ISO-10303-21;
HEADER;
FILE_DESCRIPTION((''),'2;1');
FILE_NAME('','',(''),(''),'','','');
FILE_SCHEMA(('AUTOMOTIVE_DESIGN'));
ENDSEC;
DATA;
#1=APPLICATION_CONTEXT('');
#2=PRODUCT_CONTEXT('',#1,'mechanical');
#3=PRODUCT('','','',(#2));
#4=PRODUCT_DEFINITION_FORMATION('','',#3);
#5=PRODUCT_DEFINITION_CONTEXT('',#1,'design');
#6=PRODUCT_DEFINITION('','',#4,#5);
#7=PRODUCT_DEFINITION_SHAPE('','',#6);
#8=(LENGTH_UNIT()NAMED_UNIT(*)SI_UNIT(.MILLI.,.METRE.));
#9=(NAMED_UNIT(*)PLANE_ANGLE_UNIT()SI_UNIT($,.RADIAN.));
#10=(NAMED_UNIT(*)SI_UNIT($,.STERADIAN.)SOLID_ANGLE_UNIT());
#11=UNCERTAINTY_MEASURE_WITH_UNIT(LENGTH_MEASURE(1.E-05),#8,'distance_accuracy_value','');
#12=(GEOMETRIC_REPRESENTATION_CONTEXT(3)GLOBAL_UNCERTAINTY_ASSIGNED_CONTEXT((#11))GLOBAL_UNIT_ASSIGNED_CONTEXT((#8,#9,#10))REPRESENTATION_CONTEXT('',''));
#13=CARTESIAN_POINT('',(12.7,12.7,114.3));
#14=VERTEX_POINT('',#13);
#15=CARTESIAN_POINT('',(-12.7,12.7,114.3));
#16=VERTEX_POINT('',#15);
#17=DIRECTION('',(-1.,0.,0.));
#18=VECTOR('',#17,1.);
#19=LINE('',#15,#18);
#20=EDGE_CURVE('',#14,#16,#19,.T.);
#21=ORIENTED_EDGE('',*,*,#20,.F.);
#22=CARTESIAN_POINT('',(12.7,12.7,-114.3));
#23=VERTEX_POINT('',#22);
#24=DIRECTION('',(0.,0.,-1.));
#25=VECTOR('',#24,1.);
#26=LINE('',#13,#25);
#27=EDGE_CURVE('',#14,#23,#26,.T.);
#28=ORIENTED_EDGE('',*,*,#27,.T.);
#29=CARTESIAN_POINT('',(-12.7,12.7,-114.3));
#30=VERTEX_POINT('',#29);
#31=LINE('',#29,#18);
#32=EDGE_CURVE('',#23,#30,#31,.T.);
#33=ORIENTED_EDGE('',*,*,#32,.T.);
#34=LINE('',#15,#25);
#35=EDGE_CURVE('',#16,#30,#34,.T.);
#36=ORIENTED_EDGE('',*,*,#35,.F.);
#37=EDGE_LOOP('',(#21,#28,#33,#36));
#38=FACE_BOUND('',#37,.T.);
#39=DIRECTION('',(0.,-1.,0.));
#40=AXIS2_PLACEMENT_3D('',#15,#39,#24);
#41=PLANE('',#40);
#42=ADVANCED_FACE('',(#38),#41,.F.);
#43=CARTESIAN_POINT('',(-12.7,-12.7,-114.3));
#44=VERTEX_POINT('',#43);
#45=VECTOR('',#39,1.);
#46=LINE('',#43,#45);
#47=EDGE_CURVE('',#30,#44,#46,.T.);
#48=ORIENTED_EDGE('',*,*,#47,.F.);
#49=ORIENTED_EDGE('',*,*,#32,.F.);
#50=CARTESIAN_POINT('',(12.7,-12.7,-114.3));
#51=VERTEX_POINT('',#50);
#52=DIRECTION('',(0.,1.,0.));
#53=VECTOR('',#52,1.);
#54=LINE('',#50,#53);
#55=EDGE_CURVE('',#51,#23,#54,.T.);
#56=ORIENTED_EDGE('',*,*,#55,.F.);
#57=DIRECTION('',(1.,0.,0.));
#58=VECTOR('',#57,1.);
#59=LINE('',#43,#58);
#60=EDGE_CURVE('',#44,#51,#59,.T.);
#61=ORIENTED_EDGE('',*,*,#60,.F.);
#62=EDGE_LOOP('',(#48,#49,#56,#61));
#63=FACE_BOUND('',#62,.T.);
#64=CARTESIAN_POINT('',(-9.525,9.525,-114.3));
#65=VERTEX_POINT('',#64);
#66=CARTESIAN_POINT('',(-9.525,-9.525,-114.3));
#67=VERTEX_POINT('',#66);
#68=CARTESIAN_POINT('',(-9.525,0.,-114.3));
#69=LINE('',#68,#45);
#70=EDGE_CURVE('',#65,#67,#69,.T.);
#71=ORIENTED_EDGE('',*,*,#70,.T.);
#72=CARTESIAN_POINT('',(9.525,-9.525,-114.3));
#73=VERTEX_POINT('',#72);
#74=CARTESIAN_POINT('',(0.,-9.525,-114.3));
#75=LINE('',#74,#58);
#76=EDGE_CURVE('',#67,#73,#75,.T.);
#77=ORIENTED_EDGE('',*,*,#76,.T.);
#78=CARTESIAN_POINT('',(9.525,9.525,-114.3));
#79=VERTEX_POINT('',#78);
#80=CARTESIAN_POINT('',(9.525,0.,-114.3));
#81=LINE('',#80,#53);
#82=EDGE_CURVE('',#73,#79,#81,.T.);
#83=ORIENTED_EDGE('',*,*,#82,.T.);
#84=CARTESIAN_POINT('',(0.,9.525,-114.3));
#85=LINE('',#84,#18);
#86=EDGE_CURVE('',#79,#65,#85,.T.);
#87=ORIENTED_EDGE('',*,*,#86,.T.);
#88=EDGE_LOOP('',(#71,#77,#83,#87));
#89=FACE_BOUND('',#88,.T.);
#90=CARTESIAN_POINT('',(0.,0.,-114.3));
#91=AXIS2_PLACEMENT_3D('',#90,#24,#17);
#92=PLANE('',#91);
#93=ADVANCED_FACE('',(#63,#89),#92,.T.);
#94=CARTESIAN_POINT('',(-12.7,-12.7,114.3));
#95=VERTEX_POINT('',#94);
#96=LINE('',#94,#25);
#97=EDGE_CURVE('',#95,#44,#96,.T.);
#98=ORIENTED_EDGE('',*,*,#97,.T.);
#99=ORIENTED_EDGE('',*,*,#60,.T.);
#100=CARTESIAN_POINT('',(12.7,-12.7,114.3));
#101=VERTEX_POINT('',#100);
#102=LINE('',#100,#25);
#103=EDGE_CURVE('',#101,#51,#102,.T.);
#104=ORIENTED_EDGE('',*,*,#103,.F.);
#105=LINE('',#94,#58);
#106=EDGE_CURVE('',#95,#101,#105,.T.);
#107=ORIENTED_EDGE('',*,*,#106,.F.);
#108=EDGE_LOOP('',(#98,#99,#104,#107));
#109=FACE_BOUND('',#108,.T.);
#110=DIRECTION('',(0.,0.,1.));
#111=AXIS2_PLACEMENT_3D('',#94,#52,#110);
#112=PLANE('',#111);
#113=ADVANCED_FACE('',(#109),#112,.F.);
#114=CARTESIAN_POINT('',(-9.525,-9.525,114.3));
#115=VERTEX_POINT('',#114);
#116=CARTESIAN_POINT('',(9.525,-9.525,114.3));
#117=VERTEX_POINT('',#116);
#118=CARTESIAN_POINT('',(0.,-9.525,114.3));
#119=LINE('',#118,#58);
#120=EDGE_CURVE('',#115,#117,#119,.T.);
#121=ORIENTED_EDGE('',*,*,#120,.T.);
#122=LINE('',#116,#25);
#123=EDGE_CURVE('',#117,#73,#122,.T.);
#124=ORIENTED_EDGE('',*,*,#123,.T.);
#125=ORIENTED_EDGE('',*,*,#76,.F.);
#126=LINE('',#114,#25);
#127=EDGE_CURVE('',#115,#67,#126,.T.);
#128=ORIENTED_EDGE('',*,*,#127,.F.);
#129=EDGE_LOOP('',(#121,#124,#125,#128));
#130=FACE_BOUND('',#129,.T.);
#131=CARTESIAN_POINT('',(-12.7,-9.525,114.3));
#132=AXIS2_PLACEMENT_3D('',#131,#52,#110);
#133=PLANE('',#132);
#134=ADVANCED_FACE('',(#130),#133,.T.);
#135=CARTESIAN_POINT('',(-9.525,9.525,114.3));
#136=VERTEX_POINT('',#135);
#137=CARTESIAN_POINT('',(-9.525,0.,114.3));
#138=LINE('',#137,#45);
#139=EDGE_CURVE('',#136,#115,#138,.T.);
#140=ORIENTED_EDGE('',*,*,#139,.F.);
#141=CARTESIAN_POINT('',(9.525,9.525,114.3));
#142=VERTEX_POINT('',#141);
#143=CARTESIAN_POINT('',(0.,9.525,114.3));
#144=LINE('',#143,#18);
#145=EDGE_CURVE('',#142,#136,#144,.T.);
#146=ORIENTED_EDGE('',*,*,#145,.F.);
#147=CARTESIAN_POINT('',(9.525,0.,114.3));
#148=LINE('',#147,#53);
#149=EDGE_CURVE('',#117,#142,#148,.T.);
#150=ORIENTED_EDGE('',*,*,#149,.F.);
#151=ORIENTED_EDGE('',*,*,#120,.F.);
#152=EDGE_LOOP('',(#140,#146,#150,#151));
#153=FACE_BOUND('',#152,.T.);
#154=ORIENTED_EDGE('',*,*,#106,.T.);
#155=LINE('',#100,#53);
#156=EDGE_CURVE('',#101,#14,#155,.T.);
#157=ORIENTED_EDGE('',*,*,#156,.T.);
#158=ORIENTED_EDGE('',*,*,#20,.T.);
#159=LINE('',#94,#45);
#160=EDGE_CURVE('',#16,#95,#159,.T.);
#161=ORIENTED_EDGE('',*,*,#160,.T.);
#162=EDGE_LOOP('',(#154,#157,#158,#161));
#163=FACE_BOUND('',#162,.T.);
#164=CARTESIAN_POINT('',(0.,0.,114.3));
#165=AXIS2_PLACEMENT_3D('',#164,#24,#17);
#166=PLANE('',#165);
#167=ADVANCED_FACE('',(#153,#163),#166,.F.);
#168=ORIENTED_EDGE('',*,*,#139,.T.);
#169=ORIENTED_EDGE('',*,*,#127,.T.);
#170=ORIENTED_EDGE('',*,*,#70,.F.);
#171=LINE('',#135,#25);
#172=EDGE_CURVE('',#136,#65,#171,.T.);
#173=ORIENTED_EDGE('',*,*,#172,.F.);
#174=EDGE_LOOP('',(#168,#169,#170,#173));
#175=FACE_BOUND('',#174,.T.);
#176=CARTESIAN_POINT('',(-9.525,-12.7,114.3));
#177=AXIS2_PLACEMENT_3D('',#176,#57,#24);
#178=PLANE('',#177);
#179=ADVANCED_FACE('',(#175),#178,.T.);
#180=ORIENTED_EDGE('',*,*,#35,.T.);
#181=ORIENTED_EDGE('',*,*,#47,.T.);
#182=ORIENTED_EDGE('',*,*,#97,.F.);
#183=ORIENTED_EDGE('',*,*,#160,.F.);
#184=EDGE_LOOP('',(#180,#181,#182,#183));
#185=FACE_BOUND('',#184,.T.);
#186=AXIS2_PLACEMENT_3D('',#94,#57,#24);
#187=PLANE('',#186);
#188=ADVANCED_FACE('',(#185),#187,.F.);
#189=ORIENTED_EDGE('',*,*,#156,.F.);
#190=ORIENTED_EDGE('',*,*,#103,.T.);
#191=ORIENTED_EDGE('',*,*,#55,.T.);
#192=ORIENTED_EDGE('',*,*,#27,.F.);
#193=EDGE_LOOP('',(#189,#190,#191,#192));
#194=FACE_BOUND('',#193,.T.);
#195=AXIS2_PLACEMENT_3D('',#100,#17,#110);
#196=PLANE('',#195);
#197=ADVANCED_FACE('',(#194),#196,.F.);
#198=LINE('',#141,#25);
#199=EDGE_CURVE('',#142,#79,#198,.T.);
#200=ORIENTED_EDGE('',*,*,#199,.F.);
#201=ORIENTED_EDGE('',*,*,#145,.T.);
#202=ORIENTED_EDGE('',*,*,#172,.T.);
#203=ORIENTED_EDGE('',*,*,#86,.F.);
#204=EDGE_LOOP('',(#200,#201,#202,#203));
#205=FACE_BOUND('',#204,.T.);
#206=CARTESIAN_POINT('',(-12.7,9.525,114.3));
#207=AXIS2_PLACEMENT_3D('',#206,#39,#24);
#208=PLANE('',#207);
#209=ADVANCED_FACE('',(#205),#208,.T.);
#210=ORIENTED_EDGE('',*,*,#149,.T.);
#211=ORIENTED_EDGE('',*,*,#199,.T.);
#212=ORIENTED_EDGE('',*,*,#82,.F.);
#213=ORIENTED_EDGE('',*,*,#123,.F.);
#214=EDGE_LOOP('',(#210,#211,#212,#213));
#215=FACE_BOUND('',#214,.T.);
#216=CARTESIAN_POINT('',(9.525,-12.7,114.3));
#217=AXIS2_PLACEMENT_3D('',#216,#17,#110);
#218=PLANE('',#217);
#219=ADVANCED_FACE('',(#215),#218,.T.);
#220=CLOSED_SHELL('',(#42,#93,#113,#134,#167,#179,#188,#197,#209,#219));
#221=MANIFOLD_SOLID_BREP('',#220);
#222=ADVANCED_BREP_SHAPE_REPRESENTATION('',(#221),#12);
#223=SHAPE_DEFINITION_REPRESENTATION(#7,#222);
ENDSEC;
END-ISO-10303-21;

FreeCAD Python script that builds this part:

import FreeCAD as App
import Part
import Sketcher
Q = App.Units.Quantity


def faces_at(feature, points):
    """Names of the faces that lie closest to the given points."""
    faces = feature.Shape.Faces
    near = lambda p: min(range(len(faces)), key=lambda i: faces[i].distToShape(Part.Vertex(*p))[0])
    return sorted({f"Face{near(p) + 1}" for p in points})

doc = App.newDocument("Part")
body = doc.addObject("PartDesign::Body", "Body")

sketch1 = body.newObject("Sketcher::SketchObject", "Sketch")
sketch1.AttachmentSupport = (doc.getObject("XY_Plane"), [""])
sketch1.MapMode = "FlatFace"
sketch1.addGeometry(Part.LineSegment(App.Vector(-12.7, 12.7, 0), App.Vector(-12.7, -12.7, 0)), False)
sketch1.addGeometry(Part.LineSegment(App.Vector(-12.7, -12.7, 0), App.Vector(12.7, -12.7, 0)), False)
sketch1.addGeometry(Part.LineSegment(App.Vector(12.7, -12.7, 0), App.Vector(12.7, 12.7, 0)), False)
sketch1.addGeometry(Part.LineSegment(App.Vector(12.7, 12.7, 0), App.Vector(-12.7, 12.7, 0)), False)
sketch1.addConstraint(Sketcher.Constraint("Coincident", 0, 2, 1, 1))
sketch1.addConstraint(Sketcher.Constraint("Coincident", 1, 2, 2, 1))
sketch1.addConstraint(Sketcher.Constraint("Coincident", 2, 2, 3, 1))
sketch1.addConstraint(Sketcher.Constraint("Coincident", 3, 2, 0, 1))
sketch1.addConstraint(Sketcher.Constraint("Vertical", 0))
sketch1.addConstraint(Sketcher.Constraint("Horizontal", 1))
sketch1.addConstraint(Sketcher.Constraint("Vertical", 2))
sketch1.addConstraint(Sketcher.Constraint("Horizontal", 3))
sketch1.addConstraint(Sketcher.Constraint("Symmetric", 0, 2, 2, 2, -1, 1))
sketch1.addConstraint(Sketcher.Constraint("Equal", 3, 0))
sketch1.addConstraint(Sketcher.Constraint("DistanceX", 1, 1, 1, 2, Q("1 in")))
pad1 = body.newObject("PartDesign::Pad", "Pad")
pad1.Profile = sketch1
pad1.Length = Q("9 in")
pad1.Midplane = True
doc.recompute()

thickness = body.newObject("PartDesign::Thickness", "Thickness")
thickness.Base = (pad1, faces_at(pad1, [(0, 0, 114.3), (0, 0, -114.3)]))
thickness.Value = Q("0.125 in")
thickness.Reversed = True
thickness.Join = "Intersection"

doc.recompute()
